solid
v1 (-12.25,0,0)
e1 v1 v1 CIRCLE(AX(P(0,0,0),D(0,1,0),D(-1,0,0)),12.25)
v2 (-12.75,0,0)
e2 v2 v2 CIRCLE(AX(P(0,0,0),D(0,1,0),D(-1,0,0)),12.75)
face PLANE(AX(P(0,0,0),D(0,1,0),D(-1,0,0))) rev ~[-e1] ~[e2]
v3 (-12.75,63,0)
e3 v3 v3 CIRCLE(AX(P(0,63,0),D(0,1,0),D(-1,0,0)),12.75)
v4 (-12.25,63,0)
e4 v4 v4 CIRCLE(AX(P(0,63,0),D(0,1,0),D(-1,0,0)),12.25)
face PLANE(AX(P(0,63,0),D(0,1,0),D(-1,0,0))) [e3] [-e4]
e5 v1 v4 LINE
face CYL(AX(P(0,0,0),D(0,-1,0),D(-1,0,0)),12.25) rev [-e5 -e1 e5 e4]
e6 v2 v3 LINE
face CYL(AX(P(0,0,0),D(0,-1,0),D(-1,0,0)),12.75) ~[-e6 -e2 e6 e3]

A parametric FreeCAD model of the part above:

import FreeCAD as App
import Part
import Sketcher

doc = App.newDocument("Part")
body = doc.addObject("PartDesign::Body", "Body")

# Sketch on XZ plane
sketch1 = body.newObject("Sketcher::SketchObject", "Sketch")
sketch1.AttachmentSupport = (doc.getObject("XZ_Plane"), [""])
sketch1.MapMode = "FlatFace"
sketch1.addGeometry([
    Part.Circle(App.Vector(0, 0, 0), App.Vector(0, 0, 1), 13),
    Part.Circle(App.Vector(0, 0, 0), App.Vector(0, 0, 1), 12),
], False)
sketch1.addConstraint([
    Sketcher.Constraint("Coincident", 0, 3, -1, 1),
    Sketcher.Constraint("Coincident", 1, 3, -1, 1),
    Sketcher.Constraint("Diameter", 0, 25.5),
    Sketcher.Constraint("Diameter", 1, 24.5),
])
pad1 = body.newObject("PartDesign::Pad", "Pad")
pad1.Profile = sketch1
pad1.Length = 63
pad1.Reversed = True

doc.recompute()
